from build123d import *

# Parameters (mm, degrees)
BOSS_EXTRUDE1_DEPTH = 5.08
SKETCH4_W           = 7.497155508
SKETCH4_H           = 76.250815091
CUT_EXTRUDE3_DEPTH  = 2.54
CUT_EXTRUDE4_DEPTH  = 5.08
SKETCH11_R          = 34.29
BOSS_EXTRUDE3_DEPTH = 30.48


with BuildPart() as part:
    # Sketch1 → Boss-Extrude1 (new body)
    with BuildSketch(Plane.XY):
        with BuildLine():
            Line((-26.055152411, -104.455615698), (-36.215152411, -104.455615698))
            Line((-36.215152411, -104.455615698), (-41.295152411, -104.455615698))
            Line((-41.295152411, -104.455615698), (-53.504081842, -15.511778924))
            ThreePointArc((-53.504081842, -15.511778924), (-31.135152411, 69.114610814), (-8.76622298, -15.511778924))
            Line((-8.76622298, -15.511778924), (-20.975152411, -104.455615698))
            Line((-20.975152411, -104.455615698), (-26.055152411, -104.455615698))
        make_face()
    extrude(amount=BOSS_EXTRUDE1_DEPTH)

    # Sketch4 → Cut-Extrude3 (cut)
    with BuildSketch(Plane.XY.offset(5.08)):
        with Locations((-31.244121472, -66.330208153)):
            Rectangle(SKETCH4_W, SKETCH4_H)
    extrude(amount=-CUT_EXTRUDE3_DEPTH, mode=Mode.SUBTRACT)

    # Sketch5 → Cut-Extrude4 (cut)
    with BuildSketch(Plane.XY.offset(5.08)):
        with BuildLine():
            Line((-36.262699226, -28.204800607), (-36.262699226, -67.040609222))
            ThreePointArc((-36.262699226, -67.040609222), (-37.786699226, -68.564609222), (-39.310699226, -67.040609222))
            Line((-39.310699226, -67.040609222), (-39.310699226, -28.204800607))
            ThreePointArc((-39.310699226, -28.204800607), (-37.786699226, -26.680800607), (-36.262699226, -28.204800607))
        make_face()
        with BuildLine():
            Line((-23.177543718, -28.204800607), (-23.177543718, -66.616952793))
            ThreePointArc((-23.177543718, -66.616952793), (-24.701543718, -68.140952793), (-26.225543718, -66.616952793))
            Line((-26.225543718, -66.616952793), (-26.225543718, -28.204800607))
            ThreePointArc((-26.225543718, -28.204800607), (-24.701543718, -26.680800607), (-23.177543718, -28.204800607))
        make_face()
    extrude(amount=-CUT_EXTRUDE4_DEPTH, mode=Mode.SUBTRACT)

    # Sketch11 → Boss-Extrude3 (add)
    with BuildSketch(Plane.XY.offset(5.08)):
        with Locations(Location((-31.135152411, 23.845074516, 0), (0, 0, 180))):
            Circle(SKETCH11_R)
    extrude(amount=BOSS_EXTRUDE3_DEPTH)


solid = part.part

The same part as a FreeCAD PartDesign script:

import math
import FreeCAD as App
import Part
import Sketcher

V = App.Vector
Q = App.Units.Quantity

doc = App.newDocument("Part")
body = doc.addObject("PartDesign::Body", "Body")

sketch1 = doc.addObject("Sketcher::SketchObject", "Sketch")
body.addObject(sketch1)
sketch1.AttachmentSupport = (doc.XY_Plane, [""])
sketch1.MapMode = "FlatFace"
sketch1.addGeometry([
    Part.LineSegment(V(-54, -16, 0), V(-41, -104, 0)),
    Part.LineSegment(V(-41, -104, 0), V(-21, -104, 0)),
    Part.LineSegment(V(-21, -104, 0), V(-9, -16, 0)),
    Part.ArcOfCircle(Part.Circle(V(-31, 24, 0), V(0, 0, 1), 45), math.radians(-60), math.radians(240)),
], False)
sketch1.addConstraint([
    Sketcher.Constraint("Coincident", 0, 2, 1, 1),
    Sketcher.Constraint("Coincident", 1, 2, 2, 1),
    Sketcher.Constraint("Coincident", 2, 2, 3, 1),
    Sketcher.Constraint("Coincident", 3, 2, 0, 1),
    Sketcher.Constraint("Horizontal", 1),
    Sketcher.Constraint("Horizontal", 2, 2, 3, 2),
    Sketcher.Constraint("Equal", 0, 2),
    Sketcher.Constraint("DistanceX", 1, 1, 1, 2, Q("0.8 in")),
    Sketcher.Constraint("DistanceY", 2, 2, -1, 1, Q("0.6107 in")),
    Sketcher.Constraint("Radius", 3, Q("45.269536 mm")),
    Sketcher.Constraint("Distance", 0, Q("89.77786 mm")),
    Sketcher.Constraint("DistanceX", 3, 2, -1, 1, Q("53.504082 mm")),
    Sketcher.Constraint("DistanceY", 0, 2, 3, 3, Q("128.30069 mm")),
])
pad1 = doc.addObject("PartDesign::Pad", "Pad")
body.addObject(pad1)
pad1.Profile = sketch1
pad1.Length = Q("0.2 in")

sketch2 = doc.addObject("Sketcher::SketchObject", "Sketch001")
body.addObject(sketch2)
sketch2.AttachmentSupport = (doc.XY_Plane, [""])
sketch2.MapMode = "FlatFace"
sketch2.AttachmentOffset = App.Placement(V(0, 0, 0.2 * 25.4), App.Rotation())
sketch2.addGeometry([
    Part.LineSegment(V(-35, -28, 0), V(-35, -104, 0)),
    Part.LineSegment(V(-35, -104, 0), V(-27, -104, 0)),
    Part.LineSegment(V(-27, -104, 0), V(-27, -28, 0)),
    Part.LineSegment(V(-27, -28, 0), V(-35, -28, 0)),
], False)
sketch2.addConstraint([
    Sketcher.Constraint("Coincident", 0, 2, 1, 1),
    Sketcher.Constraint("Coincident", 1, 2, 2, 1),
    Sketcher.Constraint("Coincident", 2, 2, 3, 1),
    Sketcher.Constraint("Coincident", 3, 2, 0, 1),
    Sketcher.Constraint("Vertical", 0),
    Sketcher.Constraint("Horizontal", 1),
    Sketcher.Constraint("Vertical", 2),
    Sketcher.Constraint("Horizontal", 3),
    Sketcher.Constraint("DistanceX", 0, 2, -1, 1, Q("34.992699 mm")),
    Sketcher.Constraint("DistanceY", 2, 2, -1, 1, Q("28.204801 mm")),
    Sketcher.Constraint("DistanceX", 1, 1, 1, 2, Q("7.497156 mm")),
    Sketcher.Constraint("DistanceY", 0, 2, 0, 1, Q("76.250815 mm")),
])
pocket1 = doc.addObject("PartDesign::Pocket", "Pocket")
body.addObject(pocket1)
pocket1.Profile = sketch2
pocket1.Length = Q("0.1 in")

sketch3 = doc.addObject("Sketcher::SketchObject", "Sketch002")
body.addObject(sketch3)
sketch3.AttachmentSupport = (doc.XY_Plane, [""])
sketch3.MapMode = "FlatFace"
sketch3.AttachmentOffset = App.Placement(V(0, 0, 0.2 * 25.4), App.Rotation())
sketch3.addGeometry([
    Part.LineSegment(V(-36.3, -67, 0), V(-36.3, -28.2, 0)),
    Part.ArcOfCircle(Part.Circle(V(-37.8, -28.2, 0), V(0, 0, 1), 1.5), math.radians(0), math.radians(180)),
    Part.LineSegment(V(-39.3, -28.2, 0), V(-39.3, -67, 0)),
    Part.ArcOfCircle(Part.Circle(V(-37.8, -67, 0), V(0, 0, 1), 1.5), math.radians(180), math.radians(360)),
    Part.LineSegment(V(-23.2, -66.6, 0), V(-23.2, -28.2, 0)),
    Part.ArcOfCircle(Part.Circle(V(-24.7, -28.2, 0), V(0, 0, 1), 1.5), math.radians(0), math.radians(180)),
    Part.LineSegment(V(-26.2, -28.2, 0), V(-26.2, -66.6, 0)),
    Part.ArcOfCircle(Part.Circle(V(-24.7, -66.6, 0), V(0, 0, 1), 1.5), math.radians(180), math.radians(360)),
], False)
sketch3.addConstraint([
    Sketcher.Constraint("Tangent", 0, 2, 1, 1),
    Sketcher.Constraint("Tangent", 1, 2, 2, 1),
    Sketcher.Constraint("Tangent", 2, 2, 3, 1),
    Sketcher.Constraint("Tangent", 3, 2, 0, 1),
    Sketcher.Constraint("Tangent", 4, 2, 5, 1),
    Sketcher.Constraint("Tangent", 5, 2, 6, 1),
    Sketcher.Constraint("Tangent", 6, 2, 7, 1),
    Sketcher.Constraint("Tangent", 7, 2, 4, 1),
    Sketcher.Constraint("Vertical", 0),
    Sketcher.Constraint("Vertical", 2),
    Sketcher.Constraint("Vertical", 4),
    Sketcher.Constraint("Vertical", 6),
    Sketcher.Constraint("Equal", 3, 5),
    Sketcher.Constraint("Horizontal", 1, 3, 5, 3),
    Sketcher.Constraint("Radius", 1, Q("0.06 in")),
    Sketcher.Constraint("DistanceY", 0, 1, 0, 2, Q("38.835809 mm")),
    Sketcher.Constraint("DistanceX", 1, 3, -1, 1, Q("37.786699 mm")),
    Sketcher.Constraint("DistanceY", 1, 3, -1, 1, Q("28.204801 mm")),
    Sketcher.Constraint("DistanceY", 4, 1, 4, 2, Q("38.412152 mm")),
    Sketcher.Constraint("DistanceX", 5, 3, -1, 1, Q("24.701544 mm")),
])
pocket2 = doc.addObject("PartDesign::Pocket", "Pocket001")
body.addObject(pocket2)
pocket2.Profile = sketch3
pocket2.Length = Q("0.2 in")

sketch4 = doc.addObject("Sketcher::SketchObject", "Sketch003")
body.addObject(sketch4)
sketch4.AttachmentSupport = (doc.XY_Plane, [""])
sketch4.MapMode = "FlatFace"
sketch4.AttachmentOffset = App.Placement(V(0, 0, 0.2 * 25.4), App.Rotation())
sketch4.addGeometry(Part.Circle(V(-31, 24, 0), V(0, 0, 1), 34), False)
sketch4.addConstraint([
    Sketcher.Constraint("Diameter", 0, Q("2.7 in")),
    Sketcher.Constraint("DistanceX", 0, 3, -1, 1, Q("31.135152 mm")),
    Sketcher.Constraint("DistanceY", -1, 1, 0, 3, Q("23.845075 mm")),
])
pad2 = doc.addObject("PartDesign::Pad", "Pad001")
body.addObject(pad2)
pad2.Profile = sketch4
pad2.Length = Q("1.2 in")

doc.recompute()
